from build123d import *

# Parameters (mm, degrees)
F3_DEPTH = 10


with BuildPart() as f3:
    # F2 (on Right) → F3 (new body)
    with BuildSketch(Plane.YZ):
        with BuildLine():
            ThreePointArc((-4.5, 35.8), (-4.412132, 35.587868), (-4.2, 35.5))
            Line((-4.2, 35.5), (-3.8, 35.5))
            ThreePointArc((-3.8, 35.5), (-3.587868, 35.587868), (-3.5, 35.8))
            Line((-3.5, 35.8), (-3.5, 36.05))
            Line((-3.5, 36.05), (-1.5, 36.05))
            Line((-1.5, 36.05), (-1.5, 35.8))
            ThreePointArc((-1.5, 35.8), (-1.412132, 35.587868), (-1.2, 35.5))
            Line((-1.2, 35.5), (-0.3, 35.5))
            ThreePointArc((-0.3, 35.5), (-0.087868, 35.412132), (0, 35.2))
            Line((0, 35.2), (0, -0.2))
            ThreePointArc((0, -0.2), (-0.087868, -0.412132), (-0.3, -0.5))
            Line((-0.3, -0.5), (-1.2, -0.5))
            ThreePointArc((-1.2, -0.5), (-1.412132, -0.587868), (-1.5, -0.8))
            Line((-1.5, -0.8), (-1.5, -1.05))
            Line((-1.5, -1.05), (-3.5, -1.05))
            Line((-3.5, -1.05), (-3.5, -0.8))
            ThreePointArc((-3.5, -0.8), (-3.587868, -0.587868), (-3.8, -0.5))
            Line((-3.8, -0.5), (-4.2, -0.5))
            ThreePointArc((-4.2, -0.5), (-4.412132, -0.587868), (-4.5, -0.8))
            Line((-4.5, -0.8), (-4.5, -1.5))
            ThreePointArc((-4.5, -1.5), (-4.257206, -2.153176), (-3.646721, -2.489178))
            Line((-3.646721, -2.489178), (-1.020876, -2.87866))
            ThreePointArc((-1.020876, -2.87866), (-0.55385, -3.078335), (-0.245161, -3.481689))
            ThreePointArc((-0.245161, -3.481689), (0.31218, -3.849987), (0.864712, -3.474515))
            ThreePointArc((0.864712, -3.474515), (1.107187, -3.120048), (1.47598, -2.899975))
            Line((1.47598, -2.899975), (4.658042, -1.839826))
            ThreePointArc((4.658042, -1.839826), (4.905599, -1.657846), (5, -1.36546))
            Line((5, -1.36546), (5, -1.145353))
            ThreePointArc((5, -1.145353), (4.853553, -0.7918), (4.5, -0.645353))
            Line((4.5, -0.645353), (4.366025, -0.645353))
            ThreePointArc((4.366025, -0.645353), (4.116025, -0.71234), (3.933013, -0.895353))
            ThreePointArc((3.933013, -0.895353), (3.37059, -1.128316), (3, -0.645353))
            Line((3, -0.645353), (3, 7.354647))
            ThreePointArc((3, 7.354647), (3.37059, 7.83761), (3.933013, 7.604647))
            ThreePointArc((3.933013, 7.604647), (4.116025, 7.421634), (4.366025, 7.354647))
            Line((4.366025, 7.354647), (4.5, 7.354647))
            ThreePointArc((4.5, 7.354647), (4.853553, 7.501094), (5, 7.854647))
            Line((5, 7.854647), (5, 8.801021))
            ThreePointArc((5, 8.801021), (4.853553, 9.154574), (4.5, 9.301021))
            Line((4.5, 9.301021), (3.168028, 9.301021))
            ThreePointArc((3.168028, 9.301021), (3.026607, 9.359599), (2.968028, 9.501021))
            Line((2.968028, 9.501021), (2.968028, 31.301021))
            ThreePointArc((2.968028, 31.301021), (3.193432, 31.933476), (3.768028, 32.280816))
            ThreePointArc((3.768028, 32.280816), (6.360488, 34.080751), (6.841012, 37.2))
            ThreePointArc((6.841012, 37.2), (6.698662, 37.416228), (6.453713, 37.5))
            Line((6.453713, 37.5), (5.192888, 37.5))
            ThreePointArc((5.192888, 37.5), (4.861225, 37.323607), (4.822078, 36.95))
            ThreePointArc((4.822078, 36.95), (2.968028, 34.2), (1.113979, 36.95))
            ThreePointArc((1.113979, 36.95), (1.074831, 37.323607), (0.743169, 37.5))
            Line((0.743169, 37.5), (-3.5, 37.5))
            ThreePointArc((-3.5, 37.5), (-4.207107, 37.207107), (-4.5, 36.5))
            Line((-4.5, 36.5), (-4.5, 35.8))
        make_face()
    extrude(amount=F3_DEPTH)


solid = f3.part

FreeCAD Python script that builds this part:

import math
import FreeCAD as App
import Part
import Sketcher

V = App.Vector
Q = App.Units.Quantity

doc = App.newDocument("Part")
params = doc.addObject("Spreadsheet::Sheet", "Params")
for row, (alias, value) in enumerate([
    ("sketch1_radius", "1 mm"),
    ("sketch1_radius2", "4.000001 mm"),
    ("sketch1_radius3", "2 mm"),
    ("sketch1_radius4", "0.3 mm"),
    ("sketch1_radius5", "0.6 mm"),
    ("pad1_length", "10 mm"),
], start=1):
    params.set(f"A{row}", alias)
    params.set(f"B{row}", "=" + value)
    params.setAlias(f"B{row}", alias)

body = doc.addObject("PartDesign::Body", "Body")

sketch1 = body.newObject("Sketcher::SketchObject", "Sketch")
sketch1.AttachmentSupport = (doc.getObject("YZ_Plane"), [""])
sketch1.MapMode = "FlatFace"
sketch1.addGeometry(Part.ArcOfCircle(Part.Circle(V(-4.2, 35.8, 0), V(0, 0, 1), 0.3), math.radians(-180), math.radians(-90)), False)
sketch1.addGeometry(Part.LineSegment(V(-4.2, 35.5, 0), V(-3.8, 35.5, 0)), False)
sketch1.addGeometry(Part.ArcOfCircle(Part.Circle(V(-3.8, 35.8, 0), V(0, 0, 1), 0.3), math.radians(-90), math.radians(0)), False)
sketch1.addGeometry(Part.LineSegment(V(-3.5, 35.8, 0), V(-3.5, 36.05, 0)), False)
sketch1.addGeometry(Part.LineSegment(V(-3.5, 36.05, 0), V(-1.5, 36.05, 0)), False)
sketch1.addGeometry(Part.LineSegment(V(-1.5, 36.05, 0), V(-1.5, 35.8, 0)), False)
sketch1.addGeometry(Part.ArcOfCircle(Part.Circle(V(-1.2, 35.8, 0), V(0, 0, 1), 0.3), math.radians(-180), math.radians(-90)), False)
sketch1.addGeometry(Part.LineSegment(V(-1.2, 35.5, 0), V(-0.3, 35.5, 0)), False)
sketch1.addGeometry(Part.ArcOfCircle(Part.Circle(V(-0.3, 35.2, 0), V(0, 0, 1), 0.3), math.radians(0), math.radians(90)), False)
sketch1.addGeometry(Part.LineSegment(V(0, 35.2, 0), V(0, -0.2, 0)), False)
sketch1.addGeometry(Part.ArcOfCircle(Part.Circle(V(-0.3, -0.2, 0), V(0, 0, 1), 0.3), math.radians(-90), math.radians(0)), False)
sketch1.addGeometry(Part.LineSegment(V(-0.3, -0.5, 0), V(-1.2, -0.5, 0)), False)
sketch1.addGeometry(Part.ArcOfCircle(Part.Circle(V(-1.2, -0.8, 0), V(0, 0, 1), 0.3), math.radians(90), math.radians(180)), False)
sketch1.addGeometry(Part.LineSegment(V(-1.5, -0.8, 0), V(-1.5, -1.05, 0)), False)
sketch1.addGeometry(Part.LineSegment(V(-1.5, -1.05, 0), V(-3.5, -1.05, 0)), False)
sketch1.addGeometry(Part.LineSegment(V(-3.5, -1.05, 0), V(-3.5, -0.8, 0)), False)
sketch1.addGeometry(Part.ArcOfCircle(Part.Circle(V(-3.8, -0.8, 0), V(0, 0, 1), 0.3), math.radians(0), math.radians(90)), False)
sketch1.addGeometry(Part.LineSegment(V(-3.8, -0.5, 0), V(-4.2, -0.5, 0)), False)
sketch1.addGeometry(Part.ArcOfCircle(Part.Circle(V(-4.2, -0.8, 0), V(0, 0, 1), 0.3), math.radians(90), math.radians(180)), False)
sketch1.addGeometry(Part.LineSegment(V(-4.5, -0.8, 0), V(-4.5, -1.5, 0)), False)
sketch1.addGeometry(Part.ArcOfCircle(Part.Circle(V(-3.5, -1.5, 0), V(0, 0, 1), 1), math.radians(-180), math.radians(-98)), False)
sketch1.addGeometry(Part.LineSegment(V(-3.65, -2.49, 0), V(-1.02, -2.88, 0)), False)
sketch1.addGeometry(Part.ArcOfCircle(Part.Circle(V(-1.17, -3.87, 0), V(0, 0, 1), 1), math.radians(23), math.radians(82)), False)
sketch1.addGeometry(Part.ArcOfCircle(Part.Circle(V(0.31, -3.25, 0), V(0, 0, 1), 0.6), math.radians(-157), math.radians(-22)), False)
sketch1.addGeometry(Part.ArcOfCircle(Part.Circle(V(1.79, -3.85, 0), V(0, 0, 1), 1), math.radians(108), math.radians(158)), False)
sketch1.addGeometry(Part.LineSegment(V(1.48, -2.9, 0), V(4.66, -1.84, 0)), False)
sketch1.addGeometry(Part.ArcOfCircle(Part.Circle(V(4.5, -1.37, 0), V(0, 0, 1), 0.5), math.radians(-72), math.radians(0)), False)
sketch1.addGeometry(Part.LineSegment(V(5, -1.37, 0), V(5, -1.15, 0)), False)
sketch1.addGeometry(Part.ArcOfCircle(Part.Circle(V(4.5, -1.15, 0), V(0, 0, 1), 0.5), math.radians(0), math.radians(90)), False)
sketch1.addGeometry(Part.LineSegment(V(4.5, -0.65, 0), V(4.37, -0.65, 0)), False)
sketch1.addGeometry(Part.ArcOfCircle(Part.Circle(V(4.37, -1.15, 0), V(0, 0, 1), 0.5), math.radians(90), math.radians(150)), False)
sketch1.addGeometry(Part.ArcOfCircle(Part.Circle(V(3.5, -0.65, 0), V(0, 0, 1), 0.5), math.radians(180), math.radians(330)), False)
sketch1.addGeometry(Part.LineSegment(V(3, -0.65, 0), V(3, 7.35, 0)), False)
sketch1.addGeometry(Part.ArcOfCircle(Part.Circle(V(3.5, 7.35, 0), V(0, 0, 1), 0.5), math.radians(30), math.radians(180)), False)
sketch1.addGeometry(Part.ArcOfCircle(Part.Circle(V(4.37, 7.85, 0), V(0, 0, 1), 0.5), math.radians(-150), math.radians(-90)), False)
sketch1.addGeometry(Part.LineSegment(V(4.37, 7.35, 0), V(4.5, 7.35, 0)), False)
sketch1.addGeometry(Part.ArcOfCircle(Part.Circle(V(4.5, 7.85, 0), V(0, 0, 1), 0.5), math.radians(-90), math.radians(0)), False)
sketch1.addGeometry(Part.LineSegment(V(5, 7.85, 0), V(5, 8.8, 0)), False)
sketch1.addGeometry(Part.ArcOfCircle(Part.Circle(V(4.5, 8.8, 0), V(0, 0, 1), 0.5), math.radians(0), math.radians(90)), False)
sketch1.addGeometry(Part.LineSegment(V(4.5, 9.3, 0), V(3.17, 9.3, 0)), False)
sketch1.addGeometry(Part.ArcOfCircle(Part.Circle(V(3.17, 9.5, 0), V(0, 0, 1), 0.2), math.radians(180), math.radians(270)), False)
sketch1.addGeometry(Part.LineSegment(V(2.97, 9.5, 0), V(2.97, 31.3, 0)), False)
sketch1.addGeometry(Part.ArcOfCircle(Part.Circle(V(3.97, 31.3, 0), V(0, 0, 1), 1), math.radians(102), math.radians(180)), False)
sketch1.addGeometry(Part.ArcOfCircle(Part.Circle(V(2.97, 36.2, 0), V(0, 0, 1), 4), math.radians(-78), math.radians(14)), False)
sketch1.addGeometry(Part.ArcOfCircle(Part.Circle(V(6.45, 37.1, 0), V(0, 0, 1), 0.4), math.radians(14), math.radians(90)), False)
sketch1.addGeometry(Part.LineSegment(V(6.45, 37.5, 0), V(5.19, 37.5, 0)), False)
sketch1.addGeometry(Part.ArcOfCircle(Part.Circle(V(5.19, 37.1, 0), V(0, 0, 1), 0.4), math.radians(90), math.radians(202)), False)
sketch1.addGeometry(Part.ArcOfCircle(Part.Circle(V(2.97, 36.2, 0), V(0, 0, 1), 2), math.radians(158), math.radians(382)), False)
sketch1.addGeometry(Part.ArcOfCircle(Part.Circle(V(0.74, 37.1, 0), V(0, 0, 1), 0.4), math.radians(-22), math.radians(90)), False)
sketch1.addGeometry(Part.LineSegment(V(0.74, 37.5, 0), V(-3.5, 37.5, 0)), False)
sketch1.addGeometry(Part.ArcOfCircle(Part.Circle(V(-3.5, 36.5, 0), V(0, 0, 1), 1), math.radians(90), math.radians(180)), False)
sketch1.addGeometry(Part.LineSegment(V(-4.5, 36.5, 0), V(-4.5, 35.8, 0)), False)
sketch1.addConstraint(Sketcher.Constraint("Tangent", 0, 2, 1, 1))
sketch1.addConstraint(Sketcher.Constraint("Tangent", 1, 2, 2, 1))
sketch1.addConstraint(Sketcher.Constraint("Tangent", 2, 2, 3, 1))
sketch1.addConstraint(Sketcher.Constraint("Coincident", 3, 2, 4, 1))
sketch1.addConstraint(Sketcher.Constraint("Coincident", 4, 2, 5, 1))
sketch1.addConstraint(Sketcher.Constraint("Tangent", 5, 2, 6, 1))
sketch1.addConstraint(Sketcher.Constraint("Tangent", 6, 2, 7, 1))
sketch1.addConstraint(Sketcher.Constraint("Tangent", 7, 2, 8, 2))
sketch1.addConstraint(Sketcher.Constraint("Tangent", 8, 1, 9, 1))
sketch1.addConstraint(Sketcher.Constraint("Tangent", 9, 2, 10, 2))
sketch1.addConstraint(Sketcher.Constraint("Tangent", 10, 1, 11, 1))
sketch1.addConstraint(Sketcher.Constraint("Tangent", 11, 2, 12, 1))
sketch1.addConstraint(Sketcher.Constraint("Tangent", 12, 2, 13, 1))
sketch1.addConstraint(Sketcher.Constraint("Coincident", 13, 2, 14, 1))
sketch1.addConstraint(Sketcher.Constraint("Coincident", 14, 2, 15, 1))
sketch1.addConstraint(Sketcher.Constraint("Tangent", 15, 2, 16, 1))
sketch1.addConstraint(Sketcher.Constraint("Tangent", 16, 2, 17, 1))
sketch1.addConstraint(Sketcher.Constraint("Tangent", 17, 2, 18, 1))
sketch1.addConstraint(Sketcher.Constraint("Tangent", 18, 2, 19, 1))
sketch1.addConstraint(Sketcher.Constraint("Tangent", 19, 2, 20, 1))
sketch1.addConstraint(Sketcher.Constraint("Tangent", 20, 2, 21, 1))
sketch1.addConstraint(Sketcher.Constraint("Tangent", 21, 2, 22, 2))
sketch1.addConstraint(Sketcher.Constraint("Coincident", 22, 1, 23, 1))
sketch1.addConstraint(Sketcher.Constraint("Tangent", 23, 2, 24, 2))
sketch1.addConstraint(Sketcher.Constraint("Coincident", 24, 1, 25, 1))
sketch1.addConstraint(Sketcher.Constraint("Tangent", 25, 2, 26, 1))
sketch1.addConstraint(Sketcher.Constraint("Tangent", 26, 2, 27, 1))
sketch1.addConstraint(Sketcher.Constraint("Coincident", 27, 2, 28, 1))
sketch1.addConstraint(Sketcher.Constraint("Coincident", 28, 2, 29, 1))
sketch1.addConstraint(Sketcher.Constraint("Coincident", 29, 2, 30, 1))
sketch1.addConstraint(Sketcher.Constraint("Coincident", 30, 2, 31, 2))
sketch1.addConstraint(Sketcher.Constraint("Tangent", 31, 1, 32, 1))
sketch1.addConstraint(Sketcher.Constraint("Tangent", 32, 2, 33, 2))
sketch1.addConstraint(Sketcher.Constraint("Coincident", 33, 1, 34, 1))
sketch1.addConstraint(Sketcher.Constraint("Coincident", 34, 2, 35, 1))
sketch1.addConstraint(Sketcher.Constraint("Coincident", 35, 2, 36, 1))
sketch1.addConstraint(Sketcher.Constraint("Coincident", 36, 2, 37, 1))
sketch1.addConstraint(Sketcher.Constraint("Coincident", 37, 2, 38, 1))
sketch1.addConstraint(Sketcher.Constraint("Coincident", 38, 2, 39, 1))
sketch1.addConstraint(Sketcher.Constraint("Coincident", 39, 2, 40, 2))
sketch1.addConstraint(Sketcher.Constraint("Coincident", 40, 1, 41, 1))
sketch1.addConstraint(Sketcher.Constraint("Tangent", 41, 2, 42, 2))
sketch1.addConstraint(Sketcher.Constraint("Tangent", 42, 1, 43, 1))
sketch1.addConstraint(Sketcher.Constraint("Tangent", 43, 2, 44, 1))
sketch1.addConstraint(Sketcher.Constraint("Tangent", 44, 2, 45, 1))
sketch1.addConstraint(Sketcher.Constraint("Coincident", 45, 2, 46, 1))
sketch1.addConstraint(Sketcher.Constraint("Coincident", 46, 2, 47, 2))
sketch1.addConstraint(Sketcher.Constraint("Tangent", 47, 1, 48, 1))
sketch1.addConstraint(Sketcher.Constraint("Tangent", 48, 2, 49, 1))
sketch1.addConstraint(Sketcher.Constraint("Tangent", 49, 2, 50, 1))
sketch1.addConstraint(Sketcher.Constraint("Tangent", 50, 2, 51, 1))
sketch1.addConstraint(Sketcher.Constraint("Tangent", 51, 2, 0, 1))
sketch1.addConstraint(Sketcher.Constraint("Horizontal", 1))
sketch1.addConstraint(Sketcher.Constraint("Vertical", 3))
sketch1.addConstraint(Sketcher.Constraint("Horizontal", 4))
sketch1.addConstraint(Sketcher.Constraint("Vertical", 5))
sketch1.addConstraint(Sketcher.Constraint("Horizontal", 7))
sketch1.addConstraint(Sketcher.Constraint("Vertical", 9))
sketch1.addConstraint(Sketcher.Constraint("Horizontal", 11))
sketch1.addConstraint(Sketcher.Constraint("Vertical", 13))
sketch1.addConstraint(Sketcher.Constraint("Horizontal", 14))
sketch1.addConstraint(Sketcher.Constraint("Vertical", 15))
sketch1.addConstraint(Sketcher.Constraint("Horizontal", 17))
sketch1.addConstraint(Sketcher.Constraint("Vertical", 19))
sketch1.addConstraint(Sketcher.Constraint("Vertical", 27))
sketch1.addConstraint(Sketcher.Constraint("Horizontal", 29))
sketch1.addConstraint(Sketcher.Constraint("Vertical", 32))
sketch1.addConstraint(Sketcher.Constraint("Horizontal", 35))
sketch1.addConstraint(Sketcher.Constraint("Vertical", 37))
sketch1.addConstraint(Sketcher.Constraint("Horizontal", 39))
sketch1.addConstraint(Sketcher.Constraint("Vertical", 41))
sketch1.addConstraint(Sketcher.Constraint("Horizontal", 45))
sketch1.addConstraint(Sketcher.Constraint("Horizontal", 49))
sketch1.addConstraint(Sketcher.Constraint("Vertical", 51))
sketch1.addConstraint(Sketcher.Constraint("Coincident", 47, 3, 43, 3))
sketch1.addConstraint(Sketcher.Constraint("Equal", 0, 2))
sketch1.addConstraint(Sketcher.Constraint("Equal", 2, 6))
sketch1.addConstraint(Sketcher.Constraint("Equal", 6, 8))
sketch1.addConstraint(Sketcher.Constraint("Equal", 8, 10))
sketch1.addConstraint(Sketcher.Constraint("Equal", 10, 12))
sketch1.addConstraint(Sketcher.Constraint("Equal", 12, 16))
sketch1.addConstraint(Sketcher.Constraint("Equal", 16, 18))
sketch1.addConstraint(Sketcher.Constraint("Equal", 26, 28))
sketch1.addConstraint(Sketcher.Constraint("Equal", 28, 31))
sketch1.addConstraint(Sketcher.Constraint("Equal", 31, 33))
sketch1.addConstraint(Sketcher.Constraint("Equal", 30, 34))
sketch1.addConstraint(Sketcher.Constraint("Equal", 33, 36))
sketch1.addConstraint(Sketcher.Constraint("Equal", 36, 38))
sketch1.addConstraint(Sketcher.Constraint("Equal", 20, 42))
sketch1.addConstraint(Sketcher.Constraint("Equal", 44, 46))
sketch1.addConstraint(Sketcher.Constraint("Equal", 46, 48))
sketch1.addConstraint(Sketcher.Constraint("Equal", 42, 50))
sketch1.addConstraint(Sketcher.Constraint("PointOnObject", 8, 1, -2))
sketch1.addConstraint(Sketcher.Constraint("Horizontal", 2, 3, 6, 3))
sketch1.addConstraint(Sketcher.Constraint("Horizontal", 12, 3, 16, 3))
sketch1.addConstraint(Sketcher.Constraint("Horizontal", 46, 3, 48, 3))
sketch1.addConstraint(Sketcher.Constraint("Horizontal", 28, 3, 27, 2))
sketch1.addConstraint(Sketcher.Constraint("Horizontal", 31, 3, 28, 2))
sketch1.addConstraint(Sketcher.Constraint("Horizontal", 32, 2, 34, 2))
sketch1.addConstraint(Sketcher.Constraint("Horizontal", 38, 3, 37, 2))
sketch1.addConstraint(Sketcher.Constraint("Horizontal", 46, 2, 47, 1))
sketch1.addConstraint(Sketcher.Constraint("Vertical", 6, 3, 12, 3))
sketch1.addConstraint(Sketcher.Constraint("Vertical", 2, 3, 16, 3))
sketch1.addConstraint(Sketcher.Constraint("Vertical", 0, 3, 18, 3))
sketch1.addConstraint(Sketcher.Constraint("Vertical", 28, 3, 36, 3))
sketch1.addConstraint(Sketcher.Constraint("Vertical", 50, 3, 2, 2))
sketch1.addConstraint(Sketcher.Constraint("Vertical", 38, 3, 28, 2))
sketch1.addConstraint(Sketcher.Constraint("Vertical", 34, 3, 29, 2))
sketch1.addConstraint(Sketcher.Constraint("Vertical", 30, 2, 33, 1))
sketch1.addConstraint(Sketcher.Constraint("Vertical", 29, 2, 34, 2))
sketch1.addConstraint(Sketcher.Constraint("Vertical", 28, 2, 35, 2))
sketch1.addConstraint(Sketcher.Constraint("Vertical", 35, 2, 38, 2))
sketch1.addConstraint(Sketcher.Constraint("Vertical", 40, 3, 39, 2))
sketch1.addConstraint(Sketcher.Constraint("Vertical", 47, 3, 40, 1))
sketch1.addConstraint(Sketcher.Constraint("Vertical", 46, 3, 45, 2))
sketch1.addConstraint(Sketcher.Constraint("Equal", 5, 13))
sketch1.addConstraint(Sketcher.Constraint("Equal", 19, 51))
sketch1.addConstraint(Sketcher.Constraint("Radius", 20, Q("1 mm")))
sketch1.addConstraint(Sketcher.Constraint("Radius", 43, Q("4.000001 mm")))
sketch1.addConstraint(Sketcher.Constraint("Radius", 47, Q("2 mm")))
sketch1.addConstraint(Sketcher.Constraint("Radius", 0, Q("0.3 mm")))
sketch1.addConstraint(Sketcher.Constraint("Radius", 23, Q("0.6 mm")))
sketch1.addConstraint(Sketcher.Constraint("Radius", 26, Q("0.5 mm")))
sketch1.addConstraint(Sketcher.Constraint("Radius", 40, Q("0.2 mm")))
sketch1.addConstraint(Sketcher.Constraint("Radius", 44, Q("0.400001 mm")))
sketch1.addConstraint(Sketcher.Constraint("DistanceX", 4, 1, 4, 2, Q("2 mm")))
sketch1.addConstraint(Sketcher.Constraint("DistanceY", 32, 1, 32, 2, Q("8 mm")))
sketch1.addConstraint(Sketcher.Constraint("DistanceX", 7, 1, 7, 2, Q("0.9 mm")))
sketch1.addConstraint(Sketcher.Constraint("DistanceY", 9, 2, 9, 1, Q("35.4 mm")))
sketch1.addConstraint(Sketcher.Constraint("DistanceY", 19, 2, 19, 1, Q("0.7 mm")))
sketch1.addConstraint(Sketcher.Constraint("DistanceY", 41, 1, 41, 2, Q("21.8 mm")))
sketch1.addConstraint(Sketcher.Constraint("DistanceX", -1, 1, 26, 2, Q("5 mm")))
sketch1.addConstraint(Sketcher.Constraint("DistanceX", -1, 1, 31, 1, Q("3 mm")))
sketch1.addConstraint(Sketcher.Constraint("DistanceY", 3, 1, 3, 2, Q("0.25 mm")))
sketch1.addConstraint(Sketcher.Constraint("DistanceY", -1, 1, 0, 3, Q("35.8 mm")))
sketch1.addConstraint(Sketcher.Constraint("DistanceY", -1, 1, 43, 3, Q("36.200001 mm")))
sketch1.addConstraint(Sketcher.Constraint("DistanceY", 23, 3, -1, 1, Q("3.249999 mm")))
sketch1.addConstraint(Sketcher.Constraint("Radius", 22, Q("0.999998 mm")))
sketch1.addConstraint(Sketcher.Constraint("Radius", 24, Q("1.000006 mm")))
sketch1.addConstraint(Sketcher.Constraint("Radius", 30, Q("0.499996 mm")))
sketch1.addConstraint(Sketcher.Constraint("DistanceX", 39, 2, 39, 1, Q("1.331972 mm")))
sketch1.addConstraint(Sketcher.Constraint("DistanceX", -1, 1, 23, 3, Q("0.308301 mm")))
sketch1.addConstraint(Sketcher.Constraint("DistanceY", 27, 1, 27, 2, Q("0.220107 mm")))
sketch1.addConstraint(Sketcher.Constraint("DistanceY", 37, 1, 37, 2, Q("0.946374 mm")))
sketch1.addConstraint(Sketcher.Constraint("DistanceY", 24, 3, -1, 1, Q("3.848711 mm")))
sketch1.addConstraint(Sketcher.Constraint("DistanceY", 26, 3, -1, 1, Q("1.36546 mm")))
sketch1.addConstraint(Sketcher.Constraint("DistanceY", -1, 1, 38, 3, Q("8.80102 mm")))
sketch1.addConstraint(Sketcher.Constraint("DistanceX", 20, 2, -1, 1, Q("3.646721 mm")))
sketch1.addConstraint(Sketcher.Constraint("DistanceX", 22, 1, -1, 1, Q("0.245161 mm")))
sketch1.addConstraint(Sketcher.Constraint("DistanceX", -1, 1, 24, 1, Q("1.47598 mm")))
sketch1.addConstraint(Sketcher.Constraint("DistanceX", -1, 1, 30, 2, Q("3.933013 mm")))
sketch1.setExpression("Constraints[117]", "Params.sketch1_radius")
sketch1.setExpression("Constraints[118]", "Params.sketch1_radius2")
sketch1.setExpression("Constraints[119]", "Params.sketch1_radius3")
sketch1.setExpression("Constraints[120]", "Params.sketch1_radius4")
sketch1.setExpression("Constraints[121]", "Params.sketch1_radius5")
pad1 = body.newObject("PartDesign::Pad", "Pad")
pad1.Profile = sketch1
pad1.setExpression("Length", "Params.pad1_length")

doc.recompute()
